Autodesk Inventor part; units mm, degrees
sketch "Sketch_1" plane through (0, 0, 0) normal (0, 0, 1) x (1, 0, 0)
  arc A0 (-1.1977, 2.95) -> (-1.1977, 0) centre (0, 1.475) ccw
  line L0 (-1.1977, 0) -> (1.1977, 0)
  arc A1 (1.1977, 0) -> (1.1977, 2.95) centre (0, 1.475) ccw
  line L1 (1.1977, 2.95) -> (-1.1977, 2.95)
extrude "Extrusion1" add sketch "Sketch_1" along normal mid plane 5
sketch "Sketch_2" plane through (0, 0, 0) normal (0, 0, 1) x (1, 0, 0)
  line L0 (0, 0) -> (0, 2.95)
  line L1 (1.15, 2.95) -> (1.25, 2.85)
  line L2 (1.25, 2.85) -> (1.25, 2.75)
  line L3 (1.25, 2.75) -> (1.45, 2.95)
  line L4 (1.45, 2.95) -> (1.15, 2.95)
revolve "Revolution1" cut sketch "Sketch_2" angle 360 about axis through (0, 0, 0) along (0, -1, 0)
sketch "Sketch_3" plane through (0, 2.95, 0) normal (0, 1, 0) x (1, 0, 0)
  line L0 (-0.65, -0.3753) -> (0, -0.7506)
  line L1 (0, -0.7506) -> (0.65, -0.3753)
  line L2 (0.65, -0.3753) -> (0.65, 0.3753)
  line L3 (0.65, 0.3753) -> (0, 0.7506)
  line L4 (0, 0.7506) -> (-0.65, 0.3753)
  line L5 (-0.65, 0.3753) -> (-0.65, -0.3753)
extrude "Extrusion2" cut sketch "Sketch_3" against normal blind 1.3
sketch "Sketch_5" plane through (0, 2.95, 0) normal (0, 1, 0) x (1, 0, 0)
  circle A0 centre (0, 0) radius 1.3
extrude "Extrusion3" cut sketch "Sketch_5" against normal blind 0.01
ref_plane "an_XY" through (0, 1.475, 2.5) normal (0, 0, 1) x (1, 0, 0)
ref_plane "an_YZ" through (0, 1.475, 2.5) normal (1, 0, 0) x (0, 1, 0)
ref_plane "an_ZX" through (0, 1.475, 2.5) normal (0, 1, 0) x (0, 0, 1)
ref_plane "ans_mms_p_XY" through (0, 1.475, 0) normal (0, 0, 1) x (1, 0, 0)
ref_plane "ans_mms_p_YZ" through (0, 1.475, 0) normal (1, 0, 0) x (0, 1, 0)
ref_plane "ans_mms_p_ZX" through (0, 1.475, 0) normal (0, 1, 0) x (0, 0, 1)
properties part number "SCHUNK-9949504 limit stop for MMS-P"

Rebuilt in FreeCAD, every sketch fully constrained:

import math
import FreeCAD as App
import Part
import Sketcher
from FreeCAD import Vector
Q = App.Units.Quantity

doc = App.newDocument("Part")
body = doc.addObject("PartDesign::Body", "Body")

sketch1 = body.newObject("Sketcher::SketchObject", "Sketch")
sketch1.AttachmentSupport = (doc.getObject("XY_Plane"), [""])
sketch1.MapMode = "FlatFace"
sketch1.addGeometry(Part.LineSegment(Vector(1.2, 3, 0), Vector(-1.2, 3, 0)), False)
sketch1.addGeometry(Part.ArcOfCircle(Part.Circle(Vector(0, 1.5, 0), Vector(0, 0, 1), 1.9), math.radians(129), math.radians(231)), False)
sketch1.addGeometry(Part.LineSegment(Vector(-1.2, 0, 0), Vector(1.2, 0, 0)), False)
sketch1.addGeometry(Part.ArcOfCircle(Part.Circle(Vector(0, 1.5, 0), Vector(0, 0, 1), 1.9), math.radians(-51), math.radians(51)), False)
sketch1.addConstraint(Sketcher.Constraint("Coincident", 0, 2, 1, 1))
sketch1.addConstraint(Sketcher.Constraint("Coincident", 1, 2, 2, 1))
sketch1.addConstraint(Sketcher.Constraint("Coincident", 2, 2, 3, 1))
sketch1.addConstraint(Sketcher.Constraint("Coincident", 3, 2, 0, 1))
sketch1.addConstraint(Sketcher.Constraint("Horizontal", 0))
sketch1.addConstraint(Sketcher.Constraint("Horizontal", 2))
sketch1.addConstraint(Sketcher.Constraint("Coincident", 3, 3, 1, 3))
sketch1.addConstraint(Sketcher.Constraint("Equal", 1, 3))
sketch1.addConstraint(Sketcher.Constraint("Symmetric", 1, 2, 2, 2, -1, 1))
sketch1.addConstraint(Sketcher.Constraint("Vertical", 0, 2, 1, 2))
sketch1.addConstraint(Sketcher.Constraint("Radius", 1, 1.9))
sketch1.addConstraint(Sketcher.Constraint("DistanceY", -1, 1, 0, 2, 2.95))
pad1 = body.newObject("PartDesign::Pad", "Pad")
pad1.Profile = sketch1
pad1.Length = 5
pad1.Midplane = True

sketch2 = body.newObject("Sketcher::SketchObject", "Sketch001")
sketch2.AttachmentSupport = (doc.getObject("XY_Plane"), [""])
sketch2.MapMode = "FlatFace"
sketch2.addGeometry(Part.LineSegment(Vector(1.45, 2.95, 0), Vector(1.15, 2.95, 0)), False)
sketch2.addGeometry(Part.LineSegment(Vector(1.15, 2.95, 0), Vector(1.25, 2.85, 0)), False)
sketch2.addGeometry(Part.LineSegment(Vector(1.25, 2.85, 0), Vector(1.25, 2.75, 0)), False)
sketch2.addGeometry(Part.LineSegment(Vector(1.25, 2.75, 0), Vector(1.45, 2.95, 0)), False)
sketch2.addConstraint(Sketcher.Constraint("Coincident", 0, 2, 1, 1))
sketch2.addConstraint(Sketcher.Constraint("Coincident", 1, 2, 2, 1))
sketch2.addConstraint(Sketcher.Constraint("Coincident", 2, 2, 3, 1))
sketch2.addConstraint(Sketcher.Constraint("Coincident", 3, 2, 0, 1))
sketch2.addConstraint(Sketcher.Constraint("Horizontal", 0))
sketch2.addConstraint(Sketcher.Constraint("Vertical", 2))
sketch2.addConstraint(Sketcher.Constraint("Perpendicular", 1, 3))
sketch2.addConstraint(Sketcher.Constraint("Angle", 1, Q("-45 deg")))
sketch2.addConstraint(Sketcher.Constraint("DistanceX", 0, 2, 0, 1, 0.3))
sketch2.addConstraint(Sketcher.Constraint("DistanceY", 2, 2, 2, 1, 0.1))
sketch2.addConstraint(Sketcher.Constraint("DistanceX", -1, 1, 0, 2, 1.15))
sketch2.addConstraint(Sketcher.Constraint("DistanceY", -1, 1, 0, 2, 2.95))
groove = body.newObject("PartDesign::Groove", "Groove")
groove.Profile = sketch2
groove.ReferenceAxis = (sketch2, ["V_Axis"])
groove.Angle = 360

sketch3 = body.newObject("Sketcher::SketchObject", "Sketch002")
sketch3.AttachmentSupport = (doc.getObject("XZ_Plane"), [""])
sketch3.MapMode = "FlatFace"
sketch3.AttachmentOffset = App.Placement(Vector(0, 0, -2.95), App.Rotation())
sketch3.addGeometry(Part.LineSegment(Vector(-0.7, -0.4, 0), Vector(-0.7, 0.4, 0)), False)
sketch3.addGeometry(Part.LineSegment(Vector(-0.7, 0.4, 0), Vector(0, 0.8, 0)), False)
sketch3.addGeometry(Part.LineSegment(Vector(0, 0.8, 0), Vector(0.7, 0.4, 0)), False)
sketch3.addGeometry(Part.LineSegment(Vector(0.7, 0.4, 0), Vector(0.7, -0.4, 0)), False)
sketch3.addGeometry(Part.LineSegment(Vector(0.7, -0.4, 0), Vector(0, -0.8, 0)), False)
sketch3.addGeometry(Part.LineSegment(Vector(0, -0.8, 0), Vector(-0.7, -0.4, 0)), False)
sketch3.addConstraint(Sketcher.Constraint("Coincident", 0, 2, 1, 1))
sketch3.addConstraint(Sketcher.Constraint("Coincident", 1, 2, 2, 1))
sketch3.addConstraint(Sketcher.Constraint("Coincident", 2, 2, 3, 1))
sketch3.addConstraint(Sketcher.Constraint("Coincident", 3, 2, 4, 1))
sketch3.addConstraint(Sketcher.Constraint("Coincident", 4, 2, 5, 1))
sketch3.addConstraint(Sketcher.Constraint("Coincident", 5, 2, 0, 1))
sketch3.addConstraint(Sketcher.Constraint("Vertical", 0))
sketch3.addConstraint(Sketcher.Constraint("Vertical", 3))
sketch3.addConstraint(Sketcher.Constraint("Symmetric", 0, 2, 3, 2, -1, 1))
sketch3.addConstraint(Sketcher.Constraint("Symmetric", 1, 2, 4, 2, -1, 1))
sketch3.addConstraint(Sketcher.Constraint("PointOnObject", 1, 2, -2))
sketch3.addConstraint(Sketcher.Constraint("Parallel", 2, 5))
sketch3.addConstraint(Sketcher.Constraint("Horizontal", 0, 2, 2, 2))
sketch3.addConstraint(Sketcher.Constraint("DistanceX", 0, 2, 2, 2, 1.3))
sketch3.addConstraint(Sketcher.Constraint("DistanceY", 0, 1, 0, 2, 0.7506))
sketch3.addConstraint(Sketcher.Constraint("DistanceY", 3, 2, 1, 2, 1.126))
pocket1 = body.newObject("PartDesign::Pocket", "Pocket")
pocket1.Profile = sketch3
pocket1.Length = 1.3
pocket1.Reversed = True

sketch4 = body.newObject("Sketcher::SketchObject", "Sketch003")
sketch4.AttachmentSupport = (doc.getObject("XZ_Plane"), [""])
sketch4.MapMode = "FlatFace"
sketch4.AttachmentOffset = App.Placement(Vector(0, 0, -2.95), App.Rotation())
sketch4.addGeometry(Part.Circle(Vector(0, 0, 0), Vector(0, 0, 1), 1.3), False)
sketch4.addConstraint(Sketcher.Constraint("Coincident", 0, 3, -1, 1))
sketch4.addConstraint(Sketcher.Constraint("Diameter", 0, 2.6))
pocket2 = body.newObject("PartDesign::Pocket", "Pocket001")
pocket2.Profile = sketch4
pocket2.Length = 0.01
pocket2.Reversed = True

doc.recompute()
